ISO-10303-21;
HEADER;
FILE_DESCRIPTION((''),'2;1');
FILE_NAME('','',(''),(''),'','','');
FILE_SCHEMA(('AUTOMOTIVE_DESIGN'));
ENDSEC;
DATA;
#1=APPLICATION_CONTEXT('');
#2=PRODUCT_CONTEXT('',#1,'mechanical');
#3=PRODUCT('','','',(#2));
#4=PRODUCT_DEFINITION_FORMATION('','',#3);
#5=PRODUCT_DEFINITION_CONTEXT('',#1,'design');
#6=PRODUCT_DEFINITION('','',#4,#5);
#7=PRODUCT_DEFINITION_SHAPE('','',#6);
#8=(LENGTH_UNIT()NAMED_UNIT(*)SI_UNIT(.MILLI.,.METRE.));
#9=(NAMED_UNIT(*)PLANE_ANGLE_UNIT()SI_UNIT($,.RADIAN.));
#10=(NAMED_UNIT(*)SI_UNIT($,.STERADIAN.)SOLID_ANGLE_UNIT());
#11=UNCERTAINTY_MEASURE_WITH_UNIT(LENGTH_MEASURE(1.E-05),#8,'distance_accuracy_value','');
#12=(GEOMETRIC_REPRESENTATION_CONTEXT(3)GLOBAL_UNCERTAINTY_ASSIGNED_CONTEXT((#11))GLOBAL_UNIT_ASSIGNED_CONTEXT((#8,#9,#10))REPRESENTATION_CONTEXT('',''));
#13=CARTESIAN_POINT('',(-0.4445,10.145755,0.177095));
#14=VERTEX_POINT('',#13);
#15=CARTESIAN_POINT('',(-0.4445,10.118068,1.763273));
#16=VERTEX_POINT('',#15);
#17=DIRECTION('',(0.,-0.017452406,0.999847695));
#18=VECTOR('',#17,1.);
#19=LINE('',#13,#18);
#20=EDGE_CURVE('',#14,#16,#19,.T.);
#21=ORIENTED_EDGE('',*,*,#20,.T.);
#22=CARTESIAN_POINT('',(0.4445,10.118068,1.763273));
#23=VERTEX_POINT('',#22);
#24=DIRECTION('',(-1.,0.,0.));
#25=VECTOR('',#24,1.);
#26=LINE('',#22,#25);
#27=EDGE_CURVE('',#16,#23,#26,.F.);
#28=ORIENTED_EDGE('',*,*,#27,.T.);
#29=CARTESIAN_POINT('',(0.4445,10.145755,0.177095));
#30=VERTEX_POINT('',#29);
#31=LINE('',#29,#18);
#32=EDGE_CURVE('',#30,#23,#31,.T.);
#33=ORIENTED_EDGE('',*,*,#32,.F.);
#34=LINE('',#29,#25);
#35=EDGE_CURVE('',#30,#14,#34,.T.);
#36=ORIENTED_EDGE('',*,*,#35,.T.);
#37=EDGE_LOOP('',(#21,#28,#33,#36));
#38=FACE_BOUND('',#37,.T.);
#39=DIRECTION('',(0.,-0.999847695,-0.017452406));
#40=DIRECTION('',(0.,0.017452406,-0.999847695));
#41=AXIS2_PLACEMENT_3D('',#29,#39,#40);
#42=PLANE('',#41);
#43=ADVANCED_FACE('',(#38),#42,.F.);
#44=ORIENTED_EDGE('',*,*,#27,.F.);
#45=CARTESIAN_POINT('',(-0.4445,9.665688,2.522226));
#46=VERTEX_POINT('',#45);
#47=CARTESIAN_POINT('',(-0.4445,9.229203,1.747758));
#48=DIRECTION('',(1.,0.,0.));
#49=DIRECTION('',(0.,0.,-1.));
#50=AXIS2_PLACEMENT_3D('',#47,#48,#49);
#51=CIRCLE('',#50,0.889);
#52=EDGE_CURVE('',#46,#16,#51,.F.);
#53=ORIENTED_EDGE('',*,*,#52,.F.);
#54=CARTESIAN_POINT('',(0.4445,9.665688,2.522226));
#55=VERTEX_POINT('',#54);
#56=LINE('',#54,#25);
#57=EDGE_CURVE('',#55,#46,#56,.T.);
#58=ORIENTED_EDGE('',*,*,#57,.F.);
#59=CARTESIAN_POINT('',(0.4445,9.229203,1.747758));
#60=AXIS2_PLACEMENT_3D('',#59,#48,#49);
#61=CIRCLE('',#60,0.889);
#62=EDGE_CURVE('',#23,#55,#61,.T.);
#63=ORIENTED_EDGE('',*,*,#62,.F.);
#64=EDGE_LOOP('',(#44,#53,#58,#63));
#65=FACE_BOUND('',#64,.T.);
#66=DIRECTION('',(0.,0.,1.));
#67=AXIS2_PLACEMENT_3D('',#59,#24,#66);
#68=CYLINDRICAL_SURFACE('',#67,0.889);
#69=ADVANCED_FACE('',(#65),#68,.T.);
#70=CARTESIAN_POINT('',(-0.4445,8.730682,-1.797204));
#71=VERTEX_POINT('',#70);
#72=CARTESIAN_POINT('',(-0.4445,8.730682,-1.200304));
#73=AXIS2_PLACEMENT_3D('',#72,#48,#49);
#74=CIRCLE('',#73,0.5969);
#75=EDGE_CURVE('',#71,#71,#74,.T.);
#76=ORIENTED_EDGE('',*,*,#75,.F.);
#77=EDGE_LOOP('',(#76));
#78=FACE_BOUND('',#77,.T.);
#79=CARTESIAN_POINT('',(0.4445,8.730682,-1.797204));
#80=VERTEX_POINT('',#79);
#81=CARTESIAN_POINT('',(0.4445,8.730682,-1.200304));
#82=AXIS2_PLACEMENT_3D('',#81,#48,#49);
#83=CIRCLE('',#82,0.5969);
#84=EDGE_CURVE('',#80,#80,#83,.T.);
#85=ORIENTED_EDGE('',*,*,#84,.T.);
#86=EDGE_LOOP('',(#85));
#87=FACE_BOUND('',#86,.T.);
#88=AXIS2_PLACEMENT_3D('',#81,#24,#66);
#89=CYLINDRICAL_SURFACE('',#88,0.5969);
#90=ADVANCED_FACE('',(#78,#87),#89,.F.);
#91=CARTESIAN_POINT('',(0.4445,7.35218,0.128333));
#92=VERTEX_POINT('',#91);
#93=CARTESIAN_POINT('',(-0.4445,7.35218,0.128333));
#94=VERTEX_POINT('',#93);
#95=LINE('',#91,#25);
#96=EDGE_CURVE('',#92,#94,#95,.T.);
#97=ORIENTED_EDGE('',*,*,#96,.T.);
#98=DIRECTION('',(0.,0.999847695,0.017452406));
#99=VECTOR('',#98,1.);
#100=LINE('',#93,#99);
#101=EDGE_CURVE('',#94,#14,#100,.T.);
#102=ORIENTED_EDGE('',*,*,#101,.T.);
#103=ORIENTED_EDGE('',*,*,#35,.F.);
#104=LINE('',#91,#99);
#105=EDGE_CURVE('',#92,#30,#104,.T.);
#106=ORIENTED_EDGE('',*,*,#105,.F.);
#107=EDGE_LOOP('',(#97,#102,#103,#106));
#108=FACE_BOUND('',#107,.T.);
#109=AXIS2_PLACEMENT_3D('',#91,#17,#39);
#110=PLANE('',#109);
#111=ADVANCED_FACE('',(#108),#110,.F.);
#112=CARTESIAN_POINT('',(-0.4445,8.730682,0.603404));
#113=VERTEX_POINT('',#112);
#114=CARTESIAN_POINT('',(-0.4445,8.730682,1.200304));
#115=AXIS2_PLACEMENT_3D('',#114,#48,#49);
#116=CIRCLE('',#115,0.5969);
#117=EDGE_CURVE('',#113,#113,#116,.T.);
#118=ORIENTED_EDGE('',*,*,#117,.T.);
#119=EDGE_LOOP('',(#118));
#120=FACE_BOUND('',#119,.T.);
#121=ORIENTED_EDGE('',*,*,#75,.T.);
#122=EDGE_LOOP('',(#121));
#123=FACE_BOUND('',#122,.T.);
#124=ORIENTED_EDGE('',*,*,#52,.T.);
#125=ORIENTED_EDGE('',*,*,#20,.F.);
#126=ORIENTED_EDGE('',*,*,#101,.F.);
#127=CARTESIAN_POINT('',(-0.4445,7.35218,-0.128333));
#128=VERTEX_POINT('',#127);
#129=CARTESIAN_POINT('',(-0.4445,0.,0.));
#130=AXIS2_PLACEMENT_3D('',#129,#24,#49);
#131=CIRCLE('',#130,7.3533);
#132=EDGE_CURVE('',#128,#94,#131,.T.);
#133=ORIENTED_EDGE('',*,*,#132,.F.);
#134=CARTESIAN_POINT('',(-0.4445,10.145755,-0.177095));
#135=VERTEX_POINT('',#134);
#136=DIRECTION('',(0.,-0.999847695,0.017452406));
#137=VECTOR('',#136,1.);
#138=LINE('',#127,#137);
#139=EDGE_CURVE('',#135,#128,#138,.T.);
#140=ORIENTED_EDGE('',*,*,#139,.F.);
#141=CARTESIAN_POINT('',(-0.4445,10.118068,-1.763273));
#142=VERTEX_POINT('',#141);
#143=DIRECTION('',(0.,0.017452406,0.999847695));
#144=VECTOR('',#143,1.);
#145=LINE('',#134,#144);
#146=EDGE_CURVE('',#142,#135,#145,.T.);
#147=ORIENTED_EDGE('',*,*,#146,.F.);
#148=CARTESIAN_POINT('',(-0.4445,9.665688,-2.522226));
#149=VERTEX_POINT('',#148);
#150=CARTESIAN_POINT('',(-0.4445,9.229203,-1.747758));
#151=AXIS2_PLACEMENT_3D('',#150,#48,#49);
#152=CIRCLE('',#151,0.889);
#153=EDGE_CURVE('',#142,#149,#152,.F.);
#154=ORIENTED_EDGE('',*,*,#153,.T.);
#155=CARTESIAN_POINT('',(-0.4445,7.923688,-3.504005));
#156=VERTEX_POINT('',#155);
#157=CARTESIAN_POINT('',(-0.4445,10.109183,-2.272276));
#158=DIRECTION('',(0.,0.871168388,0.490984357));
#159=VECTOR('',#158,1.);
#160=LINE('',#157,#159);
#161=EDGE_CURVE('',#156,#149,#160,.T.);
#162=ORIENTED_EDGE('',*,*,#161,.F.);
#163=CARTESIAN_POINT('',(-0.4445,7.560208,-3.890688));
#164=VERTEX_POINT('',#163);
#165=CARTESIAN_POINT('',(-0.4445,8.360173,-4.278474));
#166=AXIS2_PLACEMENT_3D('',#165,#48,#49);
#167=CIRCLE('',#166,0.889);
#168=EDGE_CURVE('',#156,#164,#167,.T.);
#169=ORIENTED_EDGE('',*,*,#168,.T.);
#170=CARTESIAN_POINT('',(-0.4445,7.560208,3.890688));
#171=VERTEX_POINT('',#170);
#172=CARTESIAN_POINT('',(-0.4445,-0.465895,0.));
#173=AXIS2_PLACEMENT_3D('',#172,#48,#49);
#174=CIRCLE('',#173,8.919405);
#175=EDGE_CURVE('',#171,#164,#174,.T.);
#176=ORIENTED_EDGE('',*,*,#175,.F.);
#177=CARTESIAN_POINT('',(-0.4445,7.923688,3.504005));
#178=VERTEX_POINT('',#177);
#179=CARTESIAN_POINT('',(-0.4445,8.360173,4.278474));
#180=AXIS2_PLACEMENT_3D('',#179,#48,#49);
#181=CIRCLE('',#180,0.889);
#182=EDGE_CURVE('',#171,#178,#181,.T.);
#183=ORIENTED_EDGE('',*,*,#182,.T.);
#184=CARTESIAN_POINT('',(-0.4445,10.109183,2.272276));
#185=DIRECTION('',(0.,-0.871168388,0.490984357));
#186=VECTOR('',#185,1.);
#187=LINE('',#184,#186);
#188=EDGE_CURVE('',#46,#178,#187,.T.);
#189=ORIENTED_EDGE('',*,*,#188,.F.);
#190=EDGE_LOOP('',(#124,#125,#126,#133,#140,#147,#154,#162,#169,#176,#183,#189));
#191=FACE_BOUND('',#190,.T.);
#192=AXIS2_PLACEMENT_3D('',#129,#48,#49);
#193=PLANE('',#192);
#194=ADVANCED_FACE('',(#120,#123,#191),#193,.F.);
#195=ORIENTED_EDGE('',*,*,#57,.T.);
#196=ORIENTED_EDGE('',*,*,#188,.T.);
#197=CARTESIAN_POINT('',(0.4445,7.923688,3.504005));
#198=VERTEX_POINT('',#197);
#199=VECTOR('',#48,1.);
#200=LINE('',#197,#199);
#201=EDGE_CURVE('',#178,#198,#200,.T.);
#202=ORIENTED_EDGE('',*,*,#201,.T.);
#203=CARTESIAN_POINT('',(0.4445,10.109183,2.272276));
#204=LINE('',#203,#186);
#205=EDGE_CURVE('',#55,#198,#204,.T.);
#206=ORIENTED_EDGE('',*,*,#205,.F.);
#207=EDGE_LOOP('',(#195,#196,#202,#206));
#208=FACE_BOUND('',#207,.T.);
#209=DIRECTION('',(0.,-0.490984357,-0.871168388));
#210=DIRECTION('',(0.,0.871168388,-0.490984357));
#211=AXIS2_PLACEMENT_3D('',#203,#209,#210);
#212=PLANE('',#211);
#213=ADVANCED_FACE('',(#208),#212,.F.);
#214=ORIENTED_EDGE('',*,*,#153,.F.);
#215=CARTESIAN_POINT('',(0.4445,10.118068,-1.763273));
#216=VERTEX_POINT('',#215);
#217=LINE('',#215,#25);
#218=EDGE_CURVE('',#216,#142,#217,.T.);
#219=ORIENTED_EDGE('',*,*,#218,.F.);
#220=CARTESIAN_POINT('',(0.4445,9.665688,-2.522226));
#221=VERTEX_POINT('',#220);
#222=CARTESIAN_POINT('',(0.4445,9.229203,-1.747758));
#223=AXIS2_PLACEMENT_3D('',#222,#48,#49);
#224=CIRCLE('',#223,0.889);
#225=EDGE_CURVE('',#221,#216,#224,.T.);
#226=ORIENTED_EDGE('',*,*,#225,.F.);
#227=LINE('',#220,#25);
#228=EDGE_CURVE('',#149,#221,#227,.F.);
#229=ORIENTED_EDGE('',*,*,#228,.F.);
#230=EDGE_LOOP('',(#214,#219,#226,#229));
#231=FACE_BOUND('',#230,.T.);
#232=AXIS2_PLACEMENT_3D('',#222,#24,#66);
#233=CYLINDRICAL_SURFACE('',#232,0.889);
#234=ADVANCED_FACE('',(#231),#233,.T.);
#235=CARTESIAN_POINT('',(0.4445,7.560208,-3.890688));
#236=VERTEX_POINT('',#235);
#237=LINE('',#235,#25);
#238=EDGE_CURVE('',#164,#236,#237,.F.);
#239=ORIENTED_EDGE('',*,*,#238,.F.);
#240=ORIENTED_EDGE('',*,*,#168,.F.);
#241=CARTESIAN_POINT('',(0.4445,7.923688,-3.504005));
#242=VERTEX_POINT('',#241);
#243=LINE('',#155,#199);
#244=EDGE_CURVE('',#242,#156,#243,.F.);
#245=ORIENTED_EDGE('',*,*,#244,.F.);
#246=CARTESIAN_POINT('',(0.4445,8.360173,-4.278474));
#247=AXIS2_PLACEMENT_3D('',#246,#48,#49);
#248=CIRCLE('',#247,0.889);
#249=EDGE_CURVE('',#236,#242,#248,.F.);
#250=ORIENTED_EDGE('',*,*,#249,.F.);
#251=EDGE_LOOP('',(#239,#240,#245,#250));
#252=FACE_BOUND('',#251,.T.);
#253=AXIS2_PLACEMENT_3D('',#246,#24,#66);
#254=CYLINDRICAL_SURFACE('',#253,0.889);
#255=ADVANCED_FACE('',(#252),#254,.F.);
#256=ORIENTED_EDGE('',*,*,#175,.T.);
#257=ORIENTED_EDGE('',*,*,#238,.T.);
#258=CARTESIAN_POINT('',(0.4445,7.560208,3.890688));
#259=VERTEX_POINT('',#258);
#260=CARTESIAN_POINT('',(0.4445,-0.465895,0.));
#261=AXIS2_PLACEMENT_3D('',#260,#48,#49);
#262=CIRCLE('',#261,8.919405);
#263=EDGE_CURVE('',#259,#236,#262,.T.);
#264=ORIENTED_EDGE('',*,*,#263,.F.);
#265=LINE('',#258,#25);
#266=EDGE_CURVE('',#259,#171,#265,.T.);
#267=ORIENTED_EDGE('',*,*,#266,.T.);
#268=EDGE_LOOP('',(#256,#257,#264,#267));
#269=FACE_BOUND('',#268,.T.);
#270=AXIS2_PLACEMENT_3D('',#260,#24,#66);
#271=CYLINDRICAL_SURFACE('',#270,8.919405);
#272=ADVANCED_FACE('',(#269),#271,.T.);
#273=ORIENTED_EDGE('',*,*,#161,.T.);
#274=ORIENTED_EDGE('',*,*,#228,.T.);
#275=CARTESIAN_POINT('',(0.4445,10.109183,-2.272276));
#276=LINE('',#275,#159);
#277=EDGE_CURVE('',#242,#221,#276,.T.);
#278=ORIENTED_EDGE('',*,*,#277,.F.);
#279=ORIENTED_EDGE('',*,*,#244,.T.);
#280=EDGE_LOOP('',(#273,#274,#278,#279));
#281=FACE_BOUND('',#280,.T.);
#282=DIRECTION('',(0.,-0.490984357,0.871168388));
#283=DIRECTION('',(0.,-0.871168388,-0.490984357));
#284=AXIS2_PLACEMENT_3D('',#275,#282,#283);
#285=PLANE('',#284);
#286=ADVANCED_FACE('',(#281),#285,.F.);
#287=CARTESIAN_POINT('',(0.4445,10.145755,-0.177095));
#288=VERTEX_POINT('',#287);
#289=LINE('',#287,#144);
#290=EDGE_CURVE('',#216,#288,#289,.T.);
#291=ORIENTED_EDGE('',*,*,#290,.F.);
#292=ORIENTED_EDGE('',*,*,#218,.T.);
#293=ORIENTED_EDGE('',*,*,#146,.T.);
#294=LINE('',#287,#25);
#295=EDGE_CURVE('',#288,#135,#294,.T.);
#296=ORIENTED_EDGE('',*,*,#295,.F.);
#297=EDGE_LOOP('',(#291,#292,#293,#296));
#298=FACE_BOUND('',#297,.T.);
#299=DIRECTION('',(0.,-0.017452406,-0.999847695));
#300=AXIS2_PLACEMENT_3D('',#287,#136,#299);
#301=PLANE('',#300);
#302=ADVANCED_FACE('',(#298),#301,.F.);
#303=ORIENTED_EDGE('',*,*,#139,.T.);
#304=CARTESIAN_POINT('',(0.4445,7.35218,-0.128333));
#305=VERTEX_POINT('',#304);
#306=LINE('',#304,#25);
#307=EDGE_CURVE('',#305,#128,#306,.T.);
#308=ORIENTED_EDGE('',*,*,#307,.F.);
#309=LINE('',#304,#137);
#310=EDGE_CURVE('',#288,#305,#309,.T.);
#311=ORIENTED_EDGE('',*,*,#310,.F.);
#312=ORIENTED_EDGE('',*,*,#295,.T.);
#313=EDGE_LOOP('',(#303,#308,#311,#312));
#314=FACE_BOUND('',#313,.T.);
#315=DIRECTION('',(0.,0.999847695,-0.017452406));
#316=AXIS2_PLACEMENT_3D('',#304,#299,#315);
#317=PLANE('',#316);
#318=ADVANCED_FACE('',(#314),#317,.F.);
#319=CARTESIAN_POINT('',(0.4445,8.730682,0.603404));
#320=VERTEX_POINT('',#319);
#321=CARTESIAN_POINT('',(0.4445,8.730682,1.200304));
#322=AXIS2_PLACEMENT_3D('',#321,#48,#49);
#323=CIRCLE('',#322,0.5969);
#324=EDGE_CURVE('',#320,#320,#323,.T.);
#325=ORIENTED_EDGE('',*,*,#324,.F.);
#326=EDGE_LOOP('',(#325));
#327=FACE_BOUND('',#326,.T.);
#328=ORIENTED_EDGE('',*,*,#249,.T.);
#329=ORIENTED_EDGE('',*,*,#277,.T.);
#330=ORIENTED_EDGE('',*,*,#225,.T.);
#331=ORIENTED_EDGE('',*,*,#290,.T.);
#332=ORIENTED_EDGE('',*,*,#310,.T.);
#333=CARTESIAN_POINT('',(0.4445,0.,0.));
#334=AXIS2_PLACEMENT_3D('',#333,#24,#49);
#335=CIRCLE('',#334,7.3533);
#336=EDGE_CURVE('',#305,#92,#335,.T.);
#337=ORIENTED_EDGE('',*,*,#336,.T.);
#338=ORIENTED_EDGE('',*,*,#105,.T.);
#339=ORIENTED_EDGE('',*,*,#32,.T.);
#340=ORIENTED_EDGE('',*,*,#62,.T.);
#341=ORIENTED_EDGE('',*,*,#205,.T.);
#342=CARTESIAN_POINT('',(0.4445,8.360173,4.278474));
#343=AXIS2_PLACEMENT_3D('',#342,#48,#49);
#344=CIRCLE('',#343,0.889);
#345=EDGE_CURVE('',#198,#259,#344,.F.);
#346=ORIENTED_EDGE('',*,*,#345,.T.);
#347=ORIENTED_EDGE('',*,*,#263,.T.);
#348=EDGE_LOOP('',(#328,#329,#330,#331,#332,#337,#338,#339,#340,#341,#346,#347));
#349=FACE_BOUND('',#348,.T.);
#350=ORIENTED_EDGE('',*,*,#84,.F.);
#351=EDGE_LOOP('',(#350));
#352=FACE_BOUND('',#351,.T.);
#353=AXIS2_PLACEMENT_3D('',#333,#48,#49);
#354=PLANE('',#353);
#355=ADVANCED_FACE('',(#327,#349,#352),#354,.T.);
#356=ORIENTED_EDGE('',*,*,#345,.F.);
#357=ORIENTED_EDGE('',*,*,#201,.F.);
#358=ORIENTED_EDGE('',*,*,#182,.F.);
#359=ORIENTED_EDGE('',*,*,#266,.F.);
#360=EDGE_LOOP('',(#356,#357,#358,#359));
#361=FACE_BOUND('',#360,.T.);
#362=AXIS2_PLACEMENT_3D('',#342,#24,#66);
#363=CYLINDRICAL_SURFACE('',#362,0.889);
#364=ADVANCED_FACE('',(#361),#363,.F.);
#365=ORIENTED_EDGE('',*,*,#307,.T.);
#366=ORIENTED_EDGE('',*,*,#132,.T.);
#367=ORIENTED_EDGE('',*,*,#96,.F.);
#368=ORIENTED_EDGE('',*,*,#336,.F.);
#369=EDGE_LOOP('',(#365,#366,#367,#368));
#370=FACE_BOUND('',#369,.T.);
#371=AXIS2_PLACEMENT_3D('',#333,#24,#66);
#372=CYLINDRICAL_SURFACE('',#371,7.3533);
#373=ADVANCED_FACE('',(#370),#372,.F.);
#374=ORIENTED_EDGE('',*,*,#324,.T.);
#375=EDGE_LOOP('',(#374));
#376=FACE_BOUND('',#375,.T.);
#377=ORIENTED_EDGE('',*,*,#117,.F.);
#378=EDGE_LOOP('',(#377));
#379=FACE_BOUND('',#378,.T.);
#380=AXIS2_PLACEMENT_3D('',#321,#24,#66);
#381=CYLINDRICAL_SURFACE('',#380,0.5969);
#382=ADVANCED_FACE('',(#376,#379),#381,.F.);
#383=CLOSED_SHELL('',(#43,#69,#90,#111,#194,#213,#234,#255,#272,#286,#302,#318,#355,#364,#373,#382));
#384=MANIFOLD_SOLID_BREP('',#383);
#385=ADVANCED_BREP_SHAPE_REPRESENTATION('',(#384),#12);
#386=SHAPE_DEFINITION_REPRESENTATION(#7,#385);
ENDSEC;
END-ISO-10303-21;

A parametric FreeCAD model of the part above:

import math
import FreeCAD as App
import Part
import Sketcher

V = App.Vector
Q = App.Units.Quantity


def edges_at(feature, points):
    """Names of the edges that pass closest to the given points."""
    edges = feature.Shape.Edges
    near = lambda p: min(range(len(edges)), key=lambda i: edges[i].distToShape(Part.Vertex(*p))[0])
    return sorted({f"Edge{near(p) + 1}" for p in points})

doc = App.newDocument("Part")
body = doc.addObject("PartDesign::Body", "Body")

# Sketch on YZ plane
sketch1 = doc.addObject("Sketcher::SketchObject", "Sketch")
body.addObject(sketch1)
sketch1.AttachmentSupport = (doc.YZ_Plane, [""])
sketch1.MapMode = "FlatFace"
sketch1.addGeometry([
    Part.LineSegment(V(7.35218, 0.128333, 0), V(10.145755, 0.177095, 0)),  # 0
    Part.LineSegment(V(10.145755, 0.177095, 0), V(10.109183, 2.272276, 0)),  # 1
    Part.LineSegment(V(10.109183, 2.272276, 0), V(7.675139, 3.644086, 0)),  # 2
    Part.ArcOfCircle(Part.Circle(V(-0.465895, 0, 0), V(0, 0, 1), 8.919405), math.radians(24.114224), math.radians(335.885776)),  # 3
    Part.LineSegment(V(7.675139, -3.644086, 0), V(10.109183, -2.272276, 0)),  # 4
    Part.LineSegment(V(10.109183, -2.272276, 0), V(10.145755, -0.177095, 0)),  # 5
    Part.LineSegment(V(10.145755, -0.177095, 0), V(7.35218, -0.128333, 0)),  # 6
    Part.ArcOfCircle(Part.Circle(V(0, 0, 0), V(0, 0, 1), 7.3533), math.radians(1), math.radians(359)),  # 7
    Part.Circle(V(8.730682, 1.200304, 0), V(0, 0, 1), 0.5969),  # 8
    Part.Circle(V(8.730682, -1.200304, 0), V(0, 0, 1), 0.5969),  # 9
], False)
sketch1.addConstraint([
    Sketcher.Constraint("Coincident", 0, 2, 1, 1),
    Sketcher.Constraint("Coincident", 1, 2, 2, 1),
    Sketcher.Constraint("Coincident", 2, 2, 3, 1),
    Sketcher.Constraint("Coincident", 3, 2, 4, 1),
    Sketcher.Constraint("Coincident", 4, 2, 5, 1),
    Sketcher.Constraint("Coincident", 5, 2, 6, 1),
    Sketcher.Constraint("Coincident", 6, 2, 7, 2),
    Sketcher.Constraint("Coincident", 7, 1, 0, 1),
    Sketcher.Constraint("Coincident", 7, 3, -1, 1),
    Sketcher.Constraint("Equal", 8, 9),
    Sketcher.Constraint("Symmetric", 8, 3, 9, 3, -1),
    Sketcher.Constraint("Symmetric", 2, 2, 3, 2, -1),
    Sketcher.Constraint("Symmetric", 1, 2, 4, 2, -1),
    Sketcher.Constraint("Symmetric", 0, 2, 5, 2, -1),
    Sketcher.Constraint("Perpendicular", 0, 1),
    Sketcher.Constraint("Perpendicular", 5, 6),
    Sketcher.Constraint("Equal", 0, 2),
    Sketcher.Constraint("Diameter", 8, Q("0.047 in")),
    Sketcher.Constraint("Angle", 0, Q("1 deg")),
    Sketcher.Constraint("Radius", 7, Q("0.2895 in")),
    Sketcher.Constraint("Distance", 0, Q("0.11 in")),
    Sketcher.Constraint("Distance", 1, Q("0.0825 in")),
    Sketcher.Constraint("Radius", 3, 8.919405),
    Sketcher.Constraint("DistanceY", 9, 3, 0, 2, 1.377399),
    Sketcher.Constraint("DistanceX", 8, 3, 1, 2, 1.378501),
    Sketcher.Constraint("DistanceX", -1, 1, 8, 3, 8.730682),
    Sketcher.Constraint("DistanceX", -1, 1, 2, 2, 7.675139),
])
pad1 = doc.addObject("PartDesign::Pad", "Pad")
body.addObject(pad1)
pad1.Profile = sketch1
pad1.Length = Q("0.035 in")
pad1.Midplane = True
doc.recompute()

fillet = doc.addObject("PartDesign::Fillet", "Fillet")
body.addObject(fillet)
fillet.Base = (pad1, edges_at(pad1, [
    (0, 10.109, -2.272),
    (0, 7.675, -3.644),
    (0, 7.675, 3.644),
    (0, 10.109, 2.272),
]))
fillet.Radius = Q("0.035 in")

doc.recompute()
